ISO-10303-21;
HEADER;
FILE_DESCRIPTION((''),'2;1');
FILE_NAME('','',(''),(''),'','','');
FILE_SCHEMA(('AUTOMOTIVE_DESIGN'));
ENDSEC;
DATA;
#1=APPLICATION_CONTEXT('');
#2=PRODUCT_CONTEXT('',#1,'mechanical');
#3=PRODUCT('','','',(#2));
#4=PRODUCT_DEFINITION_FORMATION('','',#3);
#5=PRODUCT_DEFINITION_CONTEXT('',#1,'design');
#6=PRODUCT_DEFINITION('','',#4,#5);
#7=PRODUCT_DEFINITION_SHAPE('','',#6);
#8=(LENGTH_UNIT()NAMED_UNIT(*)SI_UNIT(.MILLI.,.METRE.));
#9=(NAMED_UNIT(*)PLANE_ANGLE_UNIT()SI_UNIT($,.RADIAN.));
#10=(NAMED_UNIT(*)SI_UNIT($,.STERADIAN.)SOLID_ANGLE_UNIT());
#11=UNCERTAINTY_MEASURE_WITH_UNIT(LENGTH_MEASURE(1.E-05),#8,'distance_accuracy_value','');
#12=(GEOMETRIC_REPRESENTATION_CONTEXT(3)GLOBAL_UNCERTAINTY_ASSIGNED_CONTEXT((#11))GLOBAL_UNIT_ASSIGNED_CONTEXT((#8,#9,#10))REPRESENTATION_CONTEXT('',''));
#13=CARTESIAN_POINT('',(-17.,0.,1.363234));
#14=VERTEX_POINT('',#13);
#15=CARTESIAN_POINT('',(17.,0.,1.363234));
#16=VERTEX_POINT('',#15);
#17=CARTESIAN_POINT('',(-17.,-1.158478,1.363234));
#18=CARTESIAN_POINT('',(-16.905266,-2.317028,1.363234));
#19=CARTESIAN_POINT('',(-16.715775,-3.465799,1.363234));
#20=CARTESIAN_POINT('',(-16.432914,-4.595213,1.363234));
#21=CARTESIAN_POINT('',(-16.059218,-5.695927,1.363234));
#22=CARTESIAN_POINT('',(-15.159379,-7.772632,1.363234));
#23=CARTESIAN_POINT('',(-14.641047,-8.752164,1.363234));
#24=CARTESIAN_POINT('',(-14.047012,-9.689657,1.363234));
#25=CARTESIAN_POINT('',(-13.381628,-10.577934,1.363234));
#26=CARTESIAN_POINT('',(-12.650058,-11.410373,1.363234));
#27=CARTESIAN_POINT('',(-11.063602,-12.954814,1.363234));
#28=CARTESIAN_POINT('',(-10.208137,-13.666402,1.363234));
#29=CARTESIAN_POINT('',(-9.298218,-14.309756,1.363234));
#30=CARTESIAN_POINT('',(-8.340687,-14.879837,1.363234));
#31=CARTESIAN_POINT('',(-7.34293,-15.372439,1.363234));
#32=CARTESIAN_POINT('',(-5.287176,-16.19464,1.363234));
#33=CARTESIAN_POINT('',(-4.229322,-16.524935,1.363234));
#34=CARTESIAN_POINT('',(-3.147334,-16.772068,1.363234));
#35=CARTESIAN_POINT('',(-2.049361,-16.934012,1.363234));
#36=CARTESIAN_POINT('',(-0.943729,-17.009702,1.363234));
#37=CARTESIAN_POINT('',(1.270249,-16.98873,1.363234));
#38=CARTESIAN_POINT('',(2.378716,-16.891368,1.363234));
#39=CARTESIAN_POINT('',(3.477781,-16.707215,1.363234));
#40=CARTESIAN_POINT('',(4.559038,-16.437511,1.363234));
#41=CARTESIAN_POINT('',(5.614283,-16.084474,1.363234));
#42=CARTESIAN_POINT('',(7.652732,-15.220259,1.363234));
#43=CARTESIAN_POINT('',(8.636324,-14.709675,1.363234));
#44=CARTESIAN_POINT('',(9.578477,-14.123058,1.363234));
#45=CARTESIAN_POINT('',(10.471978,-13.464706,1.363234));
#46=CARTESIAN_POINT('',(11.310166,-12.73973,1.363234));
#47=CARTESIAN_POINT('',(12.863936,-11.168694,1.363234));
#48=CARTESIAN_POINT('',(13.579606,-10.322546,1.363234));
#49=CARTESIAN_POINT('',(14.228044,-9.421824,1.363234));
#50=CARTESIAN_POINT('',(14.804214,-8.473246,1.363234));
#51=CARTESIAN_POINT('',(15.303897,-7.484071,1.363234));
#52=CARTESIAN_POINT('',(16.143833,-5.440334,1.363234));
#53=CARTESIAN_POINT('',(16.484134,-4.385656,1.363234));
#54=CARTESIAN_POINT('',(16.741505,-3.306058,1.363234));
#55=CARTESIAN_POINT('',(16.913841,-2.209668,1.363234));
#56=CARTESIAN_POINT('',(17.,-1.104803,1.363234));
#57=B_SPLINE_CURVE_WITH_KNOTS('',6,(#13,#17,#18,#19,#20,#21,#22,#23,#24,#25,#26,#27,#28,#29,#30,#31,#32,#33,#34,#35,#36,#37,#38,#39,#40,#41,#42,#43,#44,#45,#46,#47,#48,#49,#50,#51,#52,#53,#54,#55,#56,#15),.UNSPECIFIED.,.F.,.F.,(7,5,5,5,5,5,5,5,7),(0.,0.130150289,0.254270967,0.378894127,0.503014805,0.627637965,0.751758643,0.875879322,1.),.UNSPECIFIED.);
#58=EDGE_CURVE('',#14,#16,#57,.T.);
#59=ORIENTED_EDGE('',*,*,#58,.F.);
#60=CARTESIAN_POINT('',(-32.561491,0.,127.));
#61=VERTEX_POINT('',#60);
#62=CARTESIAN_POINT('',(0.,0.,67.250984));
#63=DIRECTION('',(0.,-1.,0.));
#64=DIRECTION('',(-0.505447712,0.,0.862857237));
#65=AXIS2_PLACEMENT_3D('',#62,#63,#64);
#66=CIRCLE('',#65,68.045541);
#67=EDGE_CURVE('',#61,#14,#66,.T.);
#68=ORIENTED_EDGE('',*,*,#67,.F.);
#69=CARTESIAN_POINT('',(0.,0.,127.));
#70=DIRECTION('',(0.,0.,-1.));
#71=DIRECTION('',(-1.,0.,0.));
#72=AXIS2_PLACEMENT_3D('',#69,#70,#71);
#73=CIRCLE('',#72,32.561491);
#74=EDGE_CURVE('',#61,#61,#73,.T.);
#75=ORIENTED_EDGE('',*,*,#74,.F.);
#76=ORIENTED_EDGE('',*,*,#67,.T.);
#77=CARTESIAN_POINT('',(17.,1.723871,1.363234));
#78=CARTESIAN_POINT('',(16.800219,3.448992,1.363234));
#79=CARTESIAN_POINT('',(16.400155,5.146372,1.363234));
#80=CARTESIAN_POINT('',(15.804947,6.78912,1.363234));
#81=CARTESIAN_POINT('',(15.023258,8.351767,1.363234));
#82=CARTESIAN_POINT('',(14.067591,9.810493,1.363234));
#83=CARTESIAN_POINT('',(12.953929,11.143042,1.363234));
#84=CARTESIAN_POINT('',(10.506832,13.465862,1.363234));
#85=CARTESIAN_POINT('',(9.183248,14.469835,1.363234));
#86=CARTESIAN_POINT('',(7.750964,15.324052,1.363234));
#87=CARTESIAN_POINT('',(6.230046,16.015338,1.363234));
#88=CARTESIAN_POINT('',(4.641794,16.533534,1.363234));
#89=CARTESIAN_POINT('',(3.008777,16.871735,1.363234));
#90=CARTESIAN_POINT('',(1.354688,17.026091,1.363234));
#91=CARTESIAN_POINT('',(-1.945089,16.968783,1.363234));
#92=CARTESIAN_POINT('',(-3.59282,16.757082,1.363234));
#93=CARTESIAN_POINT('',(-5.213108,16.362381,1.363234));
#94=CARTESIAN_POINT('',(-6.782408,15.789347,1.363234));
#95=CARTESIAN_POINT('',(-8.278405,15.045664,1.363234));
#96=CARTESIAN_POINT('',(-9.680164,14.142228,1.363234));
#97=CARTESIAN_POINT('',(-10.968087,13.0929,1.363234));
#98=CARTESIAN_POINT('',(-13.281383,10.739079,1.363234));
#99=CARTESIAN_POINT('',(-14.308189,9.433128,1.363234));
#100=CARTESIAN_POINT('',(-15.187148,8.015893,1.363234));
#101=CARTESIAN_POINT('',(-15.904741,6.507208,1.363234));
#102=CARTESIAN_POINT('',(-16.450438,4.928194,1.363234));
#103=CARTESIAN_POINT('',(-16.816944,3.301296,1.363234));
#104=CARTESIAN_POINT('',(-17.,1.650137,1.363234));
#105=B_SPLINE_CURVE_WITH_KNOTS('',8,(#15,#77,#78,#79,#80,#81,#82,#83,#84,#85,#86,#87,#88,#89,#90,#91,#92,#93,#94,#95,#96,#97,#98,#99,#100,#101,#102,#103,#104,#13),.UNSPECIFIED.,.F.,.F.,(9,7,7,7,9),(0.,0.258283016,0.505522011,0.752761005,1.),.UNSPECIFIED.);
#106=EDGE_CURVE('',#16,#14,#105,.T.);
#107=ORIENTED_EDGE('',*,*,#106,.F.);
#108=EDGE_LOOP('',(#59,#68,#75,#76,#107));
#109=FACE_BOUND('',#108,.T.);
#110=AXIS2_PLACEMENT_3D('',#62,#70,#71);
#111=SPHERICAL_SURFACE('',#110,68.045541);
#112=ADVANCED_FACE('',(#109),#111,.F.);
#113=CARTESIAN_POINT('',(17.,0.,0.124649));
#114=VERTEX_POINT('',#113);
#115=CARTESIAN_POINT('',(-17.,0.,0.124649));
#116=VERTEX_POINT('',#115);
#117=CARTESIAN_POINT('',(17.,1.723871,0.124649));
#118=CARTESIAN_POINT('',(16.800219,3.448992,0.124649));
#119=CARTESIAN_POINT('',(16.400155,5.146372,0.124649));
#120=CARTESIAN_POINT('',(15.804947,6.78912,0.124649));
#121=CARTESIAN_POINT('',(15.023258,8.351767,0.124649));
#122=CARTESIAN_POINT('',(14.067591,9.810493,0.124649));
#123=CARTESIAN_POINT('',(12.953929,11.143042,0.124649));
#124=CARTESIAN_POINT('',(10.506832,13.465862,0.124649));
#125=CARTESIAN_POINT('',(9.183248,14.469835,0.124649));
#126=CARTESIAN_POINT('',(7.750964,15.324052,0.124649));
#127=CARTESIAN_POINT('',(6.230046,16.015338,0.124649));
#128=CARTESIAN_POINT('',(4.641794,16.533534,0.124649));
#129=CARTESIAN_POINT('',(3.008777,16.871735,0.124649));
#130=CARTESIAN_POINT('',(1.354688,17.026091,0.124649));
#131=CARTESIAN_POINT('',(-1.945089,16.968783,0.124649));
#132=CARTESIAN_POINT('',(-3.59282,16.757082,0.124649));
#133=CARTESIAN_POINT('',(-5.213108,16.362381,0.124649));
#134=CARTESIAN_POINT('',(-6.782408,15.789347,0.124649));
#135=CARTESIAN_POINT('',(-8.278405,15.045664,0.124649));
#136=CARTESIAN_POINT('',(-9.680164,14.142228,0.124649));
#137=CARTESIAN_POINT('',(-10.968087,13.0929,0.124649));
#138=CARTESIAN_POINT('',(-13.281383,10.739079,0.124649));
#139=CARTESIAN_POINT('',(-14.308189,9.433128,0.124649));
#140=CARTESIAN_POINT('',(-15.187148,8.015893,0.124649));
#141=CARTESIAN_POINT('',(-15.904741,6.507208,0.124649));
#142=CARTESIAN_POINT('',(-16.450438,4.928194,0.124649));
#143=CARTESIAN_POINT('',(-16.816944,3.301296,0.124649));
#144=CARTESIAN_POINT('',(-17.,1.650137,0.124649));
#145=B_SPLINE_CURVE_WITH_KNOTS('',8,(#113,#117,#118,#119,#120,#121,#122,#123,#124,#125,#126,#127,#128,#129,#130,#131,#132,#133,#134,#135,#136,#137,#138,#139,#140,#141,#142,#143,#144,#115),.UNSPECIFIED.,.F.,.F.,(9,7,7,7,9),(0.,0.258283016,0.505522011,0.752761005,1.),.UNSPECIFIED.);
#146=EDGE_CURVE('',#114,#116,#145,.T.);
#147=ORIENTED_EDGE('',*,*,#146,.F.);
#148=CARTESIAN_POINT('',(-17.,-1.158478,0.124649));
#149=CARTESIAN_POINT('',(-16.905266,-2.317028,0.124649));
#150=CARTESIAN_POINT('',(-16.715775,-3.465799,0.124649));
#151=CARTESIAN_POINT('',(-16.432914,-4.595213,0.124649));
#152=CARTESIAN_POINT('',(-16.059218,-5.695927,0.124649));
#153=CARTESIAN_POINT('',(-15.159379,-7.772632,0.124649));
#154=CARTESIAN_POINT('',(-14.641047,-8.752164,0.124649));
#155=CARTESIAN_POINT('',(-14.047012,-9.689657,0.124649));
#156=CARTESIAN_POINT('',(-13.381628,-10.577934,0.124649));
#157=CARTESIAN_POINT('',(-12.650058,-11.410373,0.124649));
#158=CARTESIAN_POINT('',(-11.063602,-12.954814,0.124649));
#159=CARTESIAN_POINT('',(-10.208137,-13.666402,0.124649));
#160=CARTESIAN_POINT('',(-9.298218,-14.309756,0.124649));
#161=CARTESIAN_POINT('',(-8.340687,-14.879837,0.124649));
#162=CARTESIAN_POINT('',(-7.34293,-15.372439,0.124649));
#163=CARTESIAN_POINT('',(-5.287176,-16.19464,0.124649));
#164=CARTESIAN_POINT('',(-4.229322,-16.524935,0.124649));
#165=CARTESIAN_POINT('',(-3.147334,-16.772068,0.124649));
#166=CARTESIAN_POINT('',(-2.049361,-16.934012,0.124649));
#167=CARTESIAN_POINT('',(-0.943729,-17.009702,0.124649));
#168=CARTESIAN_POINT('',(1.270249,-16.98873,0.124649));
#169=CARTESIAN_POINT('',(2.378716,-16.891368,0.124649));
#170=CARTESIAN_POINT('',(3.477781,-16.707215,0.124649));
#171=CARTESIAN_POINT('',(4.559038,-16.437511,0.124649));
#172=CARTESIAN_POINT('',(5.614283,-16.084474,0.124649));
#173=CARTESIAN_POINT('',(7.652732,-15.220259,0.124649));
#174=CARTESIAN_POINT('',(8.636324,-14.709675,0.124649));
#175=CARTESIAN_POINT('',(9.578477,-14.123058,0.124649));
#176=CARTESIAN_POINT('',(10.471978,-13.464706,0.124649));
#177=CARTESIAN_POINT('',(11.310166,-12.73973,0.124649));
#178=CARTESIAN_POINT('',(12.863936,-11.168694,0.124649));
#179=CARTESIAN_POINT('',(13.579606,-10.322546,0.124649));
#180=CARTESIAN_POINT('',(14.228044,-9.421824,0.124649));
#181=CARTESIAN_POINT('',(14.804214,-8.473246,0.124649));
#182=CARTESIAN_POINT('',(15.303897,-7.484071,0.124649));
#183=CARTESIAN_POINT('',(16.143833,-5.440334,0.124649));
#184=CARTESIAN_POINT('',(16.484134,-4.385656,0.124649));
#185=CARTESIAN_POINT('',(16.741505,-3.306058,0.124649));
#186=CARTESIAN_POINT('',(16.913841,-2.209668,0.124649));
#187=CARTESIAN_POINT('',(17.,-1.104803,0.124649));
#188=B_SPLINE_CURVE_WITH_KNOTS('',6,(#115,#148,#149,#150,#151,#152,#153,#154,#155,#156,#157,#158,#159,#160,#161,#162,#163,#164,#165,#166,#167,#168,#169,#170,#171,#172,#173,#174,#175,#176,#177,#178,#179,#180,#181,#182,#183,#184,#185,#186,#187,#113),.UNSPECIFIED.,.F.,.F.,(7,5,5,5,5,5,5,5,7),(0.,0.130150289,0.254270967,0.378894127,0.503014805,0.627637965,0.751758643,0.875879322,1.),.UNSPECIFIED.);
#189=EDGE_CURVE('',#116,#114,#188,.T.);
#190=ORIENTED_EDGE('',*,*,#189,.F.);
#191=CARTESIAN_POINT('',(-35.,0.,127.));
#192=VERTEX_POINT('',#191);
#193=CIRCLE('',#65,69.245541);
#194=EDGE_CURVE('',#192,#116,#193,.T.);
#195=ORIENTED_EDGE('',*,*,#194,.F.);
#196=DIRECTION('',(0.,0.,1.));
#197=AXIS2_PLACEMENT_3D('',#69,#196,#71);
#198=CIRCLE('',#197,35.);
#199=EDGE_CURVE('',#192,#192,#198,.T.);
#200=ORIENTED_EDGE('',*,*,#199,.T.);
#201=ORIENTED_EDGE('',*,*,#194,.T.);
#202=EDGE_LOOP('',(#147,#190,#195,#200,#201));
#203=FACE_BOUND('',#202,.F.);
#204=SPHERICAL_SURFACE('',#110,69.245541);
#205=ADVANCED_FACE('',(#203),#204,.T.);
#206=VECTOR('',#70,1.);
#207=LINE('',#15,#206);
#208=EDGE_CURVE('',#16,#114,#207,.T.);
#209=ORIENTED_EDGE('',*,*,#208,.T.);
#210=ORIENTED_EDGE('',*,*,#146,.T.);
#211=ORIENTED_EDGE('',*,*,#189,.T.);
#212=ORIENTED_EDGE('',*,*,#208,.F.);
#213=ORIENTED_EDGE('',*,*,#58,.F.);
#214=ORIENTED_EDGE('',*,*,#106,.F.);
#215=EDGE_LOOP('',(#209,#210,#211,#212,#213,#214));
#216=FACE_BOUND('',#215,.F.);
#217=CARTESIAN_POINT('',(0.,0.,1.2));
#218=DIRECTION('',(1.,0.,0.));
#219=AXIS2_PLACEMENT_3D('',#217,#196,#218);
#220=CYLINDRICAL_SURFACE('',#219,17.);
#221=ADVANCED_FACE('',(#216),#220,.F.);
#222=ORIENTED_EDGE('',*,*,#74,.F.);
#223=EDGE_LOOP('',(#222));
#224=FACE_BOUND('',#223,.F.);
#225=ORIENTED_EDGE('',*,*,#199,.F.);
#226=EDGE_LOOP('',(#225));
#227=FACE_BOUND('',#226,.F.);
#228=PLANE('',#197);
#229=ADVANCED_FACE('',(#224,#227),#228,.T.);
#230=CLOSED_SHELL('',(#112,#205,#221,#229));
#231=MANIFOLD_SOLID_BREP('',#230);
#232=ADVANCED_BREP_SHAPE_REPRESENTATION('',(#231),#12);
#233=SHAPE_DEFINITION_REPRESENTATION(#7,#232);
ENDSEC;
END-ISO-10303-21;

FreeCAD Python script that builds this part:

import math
import FreeCAD as App
import Part
import Sketcher

V = App.Vector
Q = App.Units.Quantity


def faces_at(feature, points):
    """Names of the faces that lie closest to the given points."""
    faces = feature.Shape.Faces
    near = lambda p: min(range(len(faces)), key=lambda i: faces[i].distToShape(Part.Vertex(*p))[0])
    return sorted({f"Face{near(p) + 1}" for p in points})

doc = App.newDocument("Part")
params = doc.addObject("Spreadsheet::Sheet", "Params")
for row, (alias, value) in enumerate([
    ("sketch1_width", "35 mm"),
    ("sketch1_height", "127 mm"),
    ("sketch1_width2", "16.5 mm"),
    ("revolution_angle", "360 deg"),
    ("thickness_wall", "1.2 mm"),
    ("sketch2_diameter", "34 mm"),
], start=1):
    params.set(f"A{row}", alias)
    params.set(f"B{row}", "=" + value)
    params.setAlias(f"B{row}", alias)

body = doc.addObject("PartDesign::Body", "Body")

sketch1 = body.newObject("Sketcher::SketchObject", "Sketch")
sketch1.AttachmentSupport = (doc.getObject("XZ_Plane"), [""])
sketch1.MapMode = "FlatFace"
sketch1.addGeometry([
    Part.LineSegment(V(-16, 0, 0), V(0, 0, 0)),
    Part.LineSegment(V(0, 0, 0), V(0, 127, 0)),
    Part.LineSegment(V(0, 127, 0), V(-35, 127, 0)),
    Part.ArcOfCircle(Part.Circle(V(0, 67, 0), V(0, 0, 1), 69), math.radians(120), math.radians(256)),
], False)
sketch1.addConstraint([
    Sketcher.Constraint("Coincident", 0, 2, 1, 1),
    Sketcher.Constraint("Coincident", 1, 2, 2, 1),
    Sketcher.Constraint("Coincident", 2, 2, 3, 1),
    Sketcher.Constraint("Coincident", 3, 2, 0, 1),
    Sketcher.Constraint("Horizontal", 0),
    Sketcher.Constraint("Vertical", 1),
    Sketcher.Constraint("Horizontal", 2),
    Sketcher.Constraint("Coincident", 0, 2, -1, 1),
    Sketcher.Constraint("PointOnObject", 3, 3, -2),
    Sketcher.Constraint("DistanceX", 2, 2, 2, 1, Q("35 mm")),
    Sketcher.Constraint("DistanceY", 1, 1, 1, 2, Q("127 mm")),
    Sketcher.Constraint("DistanceX", 0, 1, 0, 2, Q("16.5 mm")),
])
sketch1.setExpression("Constraints[9]", "Params.sketch1_width")
sketch1.setExpression("Constraints[10]", "Params.sketch1_height")
sketch1.setExpression("Constraints[11]", "Params.sketch1_width2")
revolution = body.newObject("PartDesign::Revolution", "Revolution")
revolution.Profile = sketch1
revolution.ReferenceAxis = (sketch1, ["V_Axis"])
revolution.setExpression("Angle", "Params.revolution_angle")
doc.recompute()

thickness = body.newObject("PartDesign::Thickness", "Thickness")
thickness.Base = (revolution, faces_at(revolution, [(0, 0, 127)]))
thickness.setExpression("Value", "Params.thickness_wall")
thickness.Reversed = True
thickness.Join = "Arc"

sketch2 = body.newObject("Sketcher::SketchObject", "Sketch001")
sketch2.AttachmentSupport = (doc.getObject("XY_Plane"), [""])
sketch2.MapMode = "FlatFace"
sketch2.AttachmentOffset = App.Placement(V(0, 0, 1.2), App.Rotation())
sketch2.addGeometry(Part.Circle(V(0, 0, 0), V(0, 0, 1), 17), False)
sketch2.addConstraint([
    Sketcher.Constraint("Coincident", 0, 3, -1, 1),
    Sketcher.Constraint("Diameter", 0, Q("34 mm")),
])
sketch2.setExpression("Constraints[1]", "Params.sketch2_diameter")
pocket1 = body.newObject("PartDesign::Pocket", "Pocket")
pocket1.Profile = sketch2
pocket1.Type = "ThroughAll"
pocket1.Midplane = True

doc.recompute()
